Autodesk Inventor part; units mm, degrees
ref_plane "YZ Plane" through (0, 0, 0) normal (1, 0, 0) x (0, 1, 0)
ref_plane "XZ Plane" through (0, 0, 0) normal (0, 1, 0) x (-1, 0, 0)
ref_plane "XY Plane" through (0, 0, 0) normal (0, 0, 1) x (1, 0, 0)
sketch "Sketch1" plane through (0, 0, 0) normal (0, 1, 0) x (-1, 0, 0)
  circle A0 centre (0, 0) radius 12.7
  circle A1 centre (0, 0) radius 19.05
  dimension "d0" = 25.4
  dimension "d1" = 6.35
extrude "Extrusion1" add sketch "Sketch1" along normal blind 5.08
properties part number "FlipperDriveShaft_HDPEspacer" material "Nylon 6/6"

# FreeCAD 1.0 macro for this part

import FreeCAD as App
import Part
import Sketcher

V = App.Vector
Q = App.Units.Quantity

doc = App.newDocument("Part")
body = doc.addObject("PartDesign::Body", "Body")

# Sketch on XZ plane
sketch1 = doc.addObject("Sketcher::SketchObject", "Sketch")
body.addObject(sketch1)
sketch1.AttachmentSupport = (doc.XZ_Plane, [""])
sketch1.MapMode = "FlatFace"
sketch1.addGeometry(Part.Circle(V(0, 0, 0), V(0, 0, 1), 19.05), False)
sketch1.addGeometry(Part.Circle(V(0, 0, 0), V(0, 0, 1), 12.7), False)
sketch1.addConstraint(Sketcher.Constraint("Coincident", 0, 3, -1, 1))
sketch1.addConstraint(Sketcher.Constraint("Coincident", 1, 3, -1, 1))
sketch1.addConstraint(Sketcher.Constraint("Diameter", 1, Q("1 in")))
sketch1.addConstraint(Sketcher.Constraint("Diameter", 0, Q("1.5 in")))
pad1 = doc.addObject("PartDesign::Pad", "Pad")
body.addObject(pad1)
pad1.Profile = sketch1
pad1.Length = Q("0.2 in")
pad1.Reversed = True

doc.recompute()
